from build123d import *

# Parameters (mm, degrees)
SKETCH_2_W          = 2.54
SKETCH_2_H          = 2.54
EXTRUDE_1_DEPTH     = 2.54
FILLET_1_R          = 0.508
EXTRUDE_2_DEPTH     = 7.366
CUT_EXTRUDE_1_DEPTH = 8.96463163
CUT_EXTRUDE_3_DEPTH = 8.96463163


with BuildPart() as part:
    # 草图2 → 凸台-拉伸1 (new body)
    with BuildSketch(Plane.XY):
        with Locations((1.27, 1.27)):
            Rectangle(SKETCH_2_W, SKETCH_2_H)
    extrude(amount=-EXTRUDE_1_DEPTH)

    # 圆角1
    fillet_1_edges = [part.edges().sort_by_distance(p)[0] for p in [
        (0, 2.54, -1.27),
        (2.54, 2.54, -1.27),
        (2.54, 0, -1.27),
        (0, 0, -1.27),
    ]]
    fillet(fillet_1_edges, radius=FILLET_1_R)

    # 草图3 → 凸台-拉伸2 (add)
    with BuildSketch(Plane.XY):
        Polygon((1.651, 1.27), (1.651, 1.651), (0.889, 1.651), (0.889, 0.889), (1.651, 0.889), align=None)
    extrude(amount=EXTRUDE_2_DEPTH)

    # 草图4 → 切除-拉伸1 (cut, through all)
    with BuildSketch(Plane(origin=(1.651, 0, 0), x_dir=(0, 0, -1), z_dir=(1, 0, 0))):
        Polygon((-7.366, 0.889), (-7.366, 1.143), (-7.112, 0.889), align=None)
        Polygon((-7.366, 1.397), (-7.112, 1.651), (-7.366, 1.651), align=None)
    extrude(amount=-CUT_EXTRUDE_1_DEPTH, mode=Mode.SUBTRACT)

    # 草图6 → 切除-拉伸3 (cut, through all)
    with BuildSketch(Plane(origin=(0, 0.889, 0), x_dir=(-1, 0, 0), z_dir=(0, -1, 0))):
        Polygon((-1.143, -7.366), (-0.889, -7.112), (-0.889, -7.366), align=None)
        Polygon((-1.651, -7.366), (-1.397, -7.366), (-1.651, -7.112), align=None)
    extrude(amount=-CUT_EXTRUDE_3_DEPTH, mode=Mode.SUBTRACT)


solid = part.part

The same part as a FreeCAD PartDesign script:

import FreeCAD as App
import Part
import Sketcher

V = App.Vector
Q = App.Units.Quantity


def edges_at(feature, points):
    """Names of the edges that pass closest to the given points."""
    edges = feature.Shape.Edges
    near = lambda p: min(range(len(edges)), key=lambda i: edges[i].distToShape(Part.Vertex(*p))[0])
    return sorted({f"Edge{near(p) + 1}" for p in points})

doc = App.newDocument("Part")
params = doc.addObject("Spreadsheet::Sheet", "Params")
for row, (alias, value) in enumerate([
    ("sketch1_width", "0.1 in"),
    ("pad1_length", "0.1 in"),
    ("fillet_radius", "0.02 in"),
    ("sketch2_width", "0.03 in"),
    ("pad2_length", "0.29 in"),
    ("sketch3_width", "0.01 in"),
    ("sketch4_width", "0.01 in"),
], start=1):
    params.set(f"A{row}", alias)
    params.set(f"B{row}", "=" + value)
    params.setAlias(f"B{row}", alias)

body = doc.addObject("PartDesign::Body", "Body")

# Sketch on XY plane
sketch1 = body.newObject("Sketcher::SketchObject", "Sketch")
sketch1.AttachmentSupport = (doc.getObject("XY_Plane"), [""])
sketch1.MapMode = "FlatFace"
sketch1.addGeometry([
    Part.LineSegment(V(0, 2.5, 0), V(0, 0, 0)),
    Part.LineSegment(V(0, 0, 0), V(2.5, 0, 0)),
    Part.LineSegment(V(2.5, 0, 0), V(2.5, 2.5, 0)),
    Part.LineSegment(V(2.5, 2.5, 0), V(0, 2.5, 0)),
], False)
sketch1.addConstraint([
    Sketcher.Constraint("Coincident", 0, 2, 1, 1),
    Sketcher.Constraint("Coincident", 1, 2, 2, 1),
    Sketcher.Constraint("Coincident", 2, 2, 3, 1),
    Sketcher.Constraint("Coincident", 3, 2, 0, 1),
    Sketcher.Constraint("Vertical", 0),
    Sketcher.Constraint("Horizontal", 1),
    Sketcher.Constraint("Vertical", 2),
    Sketcher.Constraint("Horizontal", 3),
    Sketcher.Constraint("Coincident", 0, 2, -1, 1),
    Sketcher.Constraint("Equal", 3, 0),
    Sketcher.Constraint("DistanceX", 1, 1, 1, 2, Q("0.1 in")),
])
sketch1.setExpression("Constraints[10]", "Params.sketch1_width")
pad1 = body.newObject("PartDesign::Pad", "Pad")
pad1.Profile = sketch1
pad1.setExpression("Length", "Params.pad1_length")
pad1.Reversed = True
doc.recompute()

fillet = body.newObject("PartDesign::Fillet", "Fillet")
fillet.Base = (pad1, edges_at(pad1, [
    (0, 2.54, -1.27),
    (2.54, 2.54, -1.27),
    (2.54, 0, -1.27),
    (0, 0, -1.27),
]))
fillet.setExpression("Radius", "Params.fillet_radius")

# Sketch on XY plane
sketch2 = body.newObject("Sketcher::SketchObject", "Sketch001")
sketch2.AttachmentSupport = (doc.getObject("XY_Plane"), [""])
sketch2.MapMode = "FlatFace"
sketch2.addGeometry([
    Part.LineSegment(V(1.7, 1.7, 0), V(0.9, 1.7, 0)),
    Part.LineSegment(V(0.9, 1.7, 0), V(0.9, 0.9, 0)),
    Part.LineSegment(V(0.9, 0.9, 0), V(1.7, 0.9, 0)),
    Part.LineSegment(V(1.7, 0.9, 0), V(1.7, 1.7, 0)),
], False)
sketch2.addConstraint([
    Sketcher.Constraint("Coincident", 0, 2, 1, 1),
    Sketcher.Constraint("Coincident", 1, 2, 2, 1),
    Sketcher.Constraint("Coincident", 2, 2, 3, 1),
    Sketcher.Constraint("Coincident", 3, 2, 0, 1),
    Sketcher.Constraint("Horizontal", 0),
    Sketcher.Constraint("Vertical", 1),
    Sketcher.Constraint("Horizontal", 2),
    Sketcher.Constraint("Vertical", 3),
    Sketcher.Constraint("Equal", 2, 1),
    Sketcher.Constraint("DistanceX", 0, 2, 0, 1, Q("0.03 in")),
    Sketcher.Constraint("DistanceX", -1, 1, 0, 2, Q("0.035 in")),
    Sketcher.Constraint("DistanceY", -1, 1, 0, 2, Q("0.065 in")),
])
sketch2.setExpression("Constraints[9]", "Params.sketch2_width")
pad2 = body.newObject("PartDesign::Pad", "Pad001")
pad2.Profile = sketch2
pad2.setExpression("Length", "Params.pad2_length")

# Sketch on YZ plane
sketch3 = body.newObject("Sketcher::SketchObject", "Sketch002")
sketch3.AttachmentSupport = (doc.getObject("YZ_Plane"), [""])
sketch3.MapMode = "FlatFace"
sketch3.AttachmentOffset = App.Placement(V(0, 0, 0.065 * 25.4), App.Rotation())
sketch3.addGeometry([
    Part.LineSegment(V(1.14, 7.37, 0), V(0.89, 7.37, 0)),  # 0
    Part.LineSegment(V(0.89, 7.37, 0), V(0.89, 7.11, 0)),  # 1
    Part.LineSegment(V(0.89, 7.11, 0), V(1.14, 7.37, 0)),  # 2
    Part.LineSegment(V(1.4, 7.37, 0), V(1.65, 7.11, 0)),  # 3
    Part.LineSegment(V(1.65, 7.11, 0), V(1.65, 7.37, 0)),  # 4
    Part.LineSegment(V(1.65, 7.37, 0), V(1.4, 7.37, 0)),  # 5
], False)
sketch3.addConstraint([
    Sketcher.Constraint("Coincident", 0, 2, 1, 1),
    Sketcher.Constraint("Coincident", 1, 2, 2, 1),
    Sketcher.Constraint("Coincident", 2, 2, 0, 1),
    Sketcher.Constraint("Coincident", 3, 2, 4, 1),
    Sketcher.Constraint("Coincident", 4, 2, 5, 1),
    Sketcher.Constraint("Coincident", 5, 2, 3, 1),
    Sketcher.Constraint("Horizontal", 0),
    Sketcher.Constraint("Vertical", 1),
    Sketcher.Constraint("Vertical", 4),
    Sketcher.Constraint("Horizontal", 5),
    Sketcher.Constraint("Perpendicular", 2, 3),
    Sketcher.Constraint("Horizontal", 1, 2, 3, 2),
    Sketcher.Constraint("Horizontal", 2, 2, 4, 2),
    Sketcher.Constraint("Equal", 0, 5),
    Sketcher.Constraint("DistanceX", 0, 2, 0, 1, Q("0.01 in")),
    Sketcher.Constraint("DistanceY", -1, 1, 0, 2, Q("0.29 in")),
    Sketcher.Constraint("DistanceX", 2, 2, 3, 2, Q("0.02 in")),
    Sketcher.Constraint("DistanceX", -1, 1, 0, 2, Q("0.035 in")),
])
sketch3.setExpression("Constraints[14]", "Params.sketch3_width")
pocket1 = body.newObject("PartDesign::Pocket", "Pocket")
pocket1.Profile = sketch3
pocket1.Type = "ThroughAll"

# Sketch on XZ plane
sketch4 = body.newObject("Sketcher::SketchObject", "Sketch003")
sketch4.AttachmentSupport = (doc.getObject("XZ_Plane"), [""])
sketch4.MapMode = "FlatFace"
sketch4.AttachmentOffset = App.Placement(V(0, 0, -0.035 * 25.4), App.Rotation())
sketch4.addGeometry([
    Part.LineSegment(V(0.89, 7.11, 0), V(1.14, 7.37, 0)),  # 0
    Part.LineSegment(V(1.14, 7.37, 0), V(0.89, 7.37, 0)),  # 1
    Part.LineSegment(V(0.89, 7.37, 0), V(0.89, 7.11, 0)),  # 2
    Part.LineSegment(V(1.65, 7.37, 0), V(1.4, 7.37, 0)),  # 3
    Part.LineSegment(V(1.4, 7.37, 0), V(1.65, 7.11, 0)),  # 4
    Part.LineSegment(V(1.65, 7.11, 0), V(1.65, 7.37, 0)),  # 5
], False)
sketch4.addConstraint([
    Sketcher.Constraint("Coincident", 0, 2, 1, 1),
    Sketcher.Constraint("Coincident", 1, 2, 2, 1),
    Sketcher.Constraint("Coincident", 2, 2, 0, 1),
    Sketcher.Constraint("Coincident", 3, 2, 4, 1),
    Sketcher.Constraint("Coincident", 4, 2, 5, 1),
    Sketcher.Constraint("Coincident", 5, 2, 3, 1),
    Sketcher.Constraint("Horizontal", 1),
    Sketcher.Constraint("Vertical", 2),
    Sketcher.Constraint("Horizontal", 3),
    Sketcher.Constraint("Vertical", 5),
    Sketcher.Constraint("Perpendicular", 0, 4),
    Sketcher.Constraint("Horizontal", 1, 2, 3, 2),
    Sketcher.Constraint("Horizontal", 2, 2, 4, 2),
    Sketcher.Constraint("Equal", 1, 3),
    Sketcher.Constraint("DistanceX", 1, 2, 1, 1, Q("0.01 in")),
    Sketcher.Constraint("DistanceY", -1, 1, 0, 2, Q("0.29 in")),
    Sketcher.Constraint("DistanceX", 0, 2, 3, 2, Q("0.01 in")),
    Sketcher.Constraint("DistanceX", -1, 1, 0, 2, Q("0.045 in")),
])
sketch4.setExpression("Constraints[14]", "Params.sketch4_width")
pocket2 = body.newObject("PartDesign::Pocket", "Pocket001")
pocket2.Profile = sketch4
pocket2.Type = "ThroughAll"

doc.recompute()
